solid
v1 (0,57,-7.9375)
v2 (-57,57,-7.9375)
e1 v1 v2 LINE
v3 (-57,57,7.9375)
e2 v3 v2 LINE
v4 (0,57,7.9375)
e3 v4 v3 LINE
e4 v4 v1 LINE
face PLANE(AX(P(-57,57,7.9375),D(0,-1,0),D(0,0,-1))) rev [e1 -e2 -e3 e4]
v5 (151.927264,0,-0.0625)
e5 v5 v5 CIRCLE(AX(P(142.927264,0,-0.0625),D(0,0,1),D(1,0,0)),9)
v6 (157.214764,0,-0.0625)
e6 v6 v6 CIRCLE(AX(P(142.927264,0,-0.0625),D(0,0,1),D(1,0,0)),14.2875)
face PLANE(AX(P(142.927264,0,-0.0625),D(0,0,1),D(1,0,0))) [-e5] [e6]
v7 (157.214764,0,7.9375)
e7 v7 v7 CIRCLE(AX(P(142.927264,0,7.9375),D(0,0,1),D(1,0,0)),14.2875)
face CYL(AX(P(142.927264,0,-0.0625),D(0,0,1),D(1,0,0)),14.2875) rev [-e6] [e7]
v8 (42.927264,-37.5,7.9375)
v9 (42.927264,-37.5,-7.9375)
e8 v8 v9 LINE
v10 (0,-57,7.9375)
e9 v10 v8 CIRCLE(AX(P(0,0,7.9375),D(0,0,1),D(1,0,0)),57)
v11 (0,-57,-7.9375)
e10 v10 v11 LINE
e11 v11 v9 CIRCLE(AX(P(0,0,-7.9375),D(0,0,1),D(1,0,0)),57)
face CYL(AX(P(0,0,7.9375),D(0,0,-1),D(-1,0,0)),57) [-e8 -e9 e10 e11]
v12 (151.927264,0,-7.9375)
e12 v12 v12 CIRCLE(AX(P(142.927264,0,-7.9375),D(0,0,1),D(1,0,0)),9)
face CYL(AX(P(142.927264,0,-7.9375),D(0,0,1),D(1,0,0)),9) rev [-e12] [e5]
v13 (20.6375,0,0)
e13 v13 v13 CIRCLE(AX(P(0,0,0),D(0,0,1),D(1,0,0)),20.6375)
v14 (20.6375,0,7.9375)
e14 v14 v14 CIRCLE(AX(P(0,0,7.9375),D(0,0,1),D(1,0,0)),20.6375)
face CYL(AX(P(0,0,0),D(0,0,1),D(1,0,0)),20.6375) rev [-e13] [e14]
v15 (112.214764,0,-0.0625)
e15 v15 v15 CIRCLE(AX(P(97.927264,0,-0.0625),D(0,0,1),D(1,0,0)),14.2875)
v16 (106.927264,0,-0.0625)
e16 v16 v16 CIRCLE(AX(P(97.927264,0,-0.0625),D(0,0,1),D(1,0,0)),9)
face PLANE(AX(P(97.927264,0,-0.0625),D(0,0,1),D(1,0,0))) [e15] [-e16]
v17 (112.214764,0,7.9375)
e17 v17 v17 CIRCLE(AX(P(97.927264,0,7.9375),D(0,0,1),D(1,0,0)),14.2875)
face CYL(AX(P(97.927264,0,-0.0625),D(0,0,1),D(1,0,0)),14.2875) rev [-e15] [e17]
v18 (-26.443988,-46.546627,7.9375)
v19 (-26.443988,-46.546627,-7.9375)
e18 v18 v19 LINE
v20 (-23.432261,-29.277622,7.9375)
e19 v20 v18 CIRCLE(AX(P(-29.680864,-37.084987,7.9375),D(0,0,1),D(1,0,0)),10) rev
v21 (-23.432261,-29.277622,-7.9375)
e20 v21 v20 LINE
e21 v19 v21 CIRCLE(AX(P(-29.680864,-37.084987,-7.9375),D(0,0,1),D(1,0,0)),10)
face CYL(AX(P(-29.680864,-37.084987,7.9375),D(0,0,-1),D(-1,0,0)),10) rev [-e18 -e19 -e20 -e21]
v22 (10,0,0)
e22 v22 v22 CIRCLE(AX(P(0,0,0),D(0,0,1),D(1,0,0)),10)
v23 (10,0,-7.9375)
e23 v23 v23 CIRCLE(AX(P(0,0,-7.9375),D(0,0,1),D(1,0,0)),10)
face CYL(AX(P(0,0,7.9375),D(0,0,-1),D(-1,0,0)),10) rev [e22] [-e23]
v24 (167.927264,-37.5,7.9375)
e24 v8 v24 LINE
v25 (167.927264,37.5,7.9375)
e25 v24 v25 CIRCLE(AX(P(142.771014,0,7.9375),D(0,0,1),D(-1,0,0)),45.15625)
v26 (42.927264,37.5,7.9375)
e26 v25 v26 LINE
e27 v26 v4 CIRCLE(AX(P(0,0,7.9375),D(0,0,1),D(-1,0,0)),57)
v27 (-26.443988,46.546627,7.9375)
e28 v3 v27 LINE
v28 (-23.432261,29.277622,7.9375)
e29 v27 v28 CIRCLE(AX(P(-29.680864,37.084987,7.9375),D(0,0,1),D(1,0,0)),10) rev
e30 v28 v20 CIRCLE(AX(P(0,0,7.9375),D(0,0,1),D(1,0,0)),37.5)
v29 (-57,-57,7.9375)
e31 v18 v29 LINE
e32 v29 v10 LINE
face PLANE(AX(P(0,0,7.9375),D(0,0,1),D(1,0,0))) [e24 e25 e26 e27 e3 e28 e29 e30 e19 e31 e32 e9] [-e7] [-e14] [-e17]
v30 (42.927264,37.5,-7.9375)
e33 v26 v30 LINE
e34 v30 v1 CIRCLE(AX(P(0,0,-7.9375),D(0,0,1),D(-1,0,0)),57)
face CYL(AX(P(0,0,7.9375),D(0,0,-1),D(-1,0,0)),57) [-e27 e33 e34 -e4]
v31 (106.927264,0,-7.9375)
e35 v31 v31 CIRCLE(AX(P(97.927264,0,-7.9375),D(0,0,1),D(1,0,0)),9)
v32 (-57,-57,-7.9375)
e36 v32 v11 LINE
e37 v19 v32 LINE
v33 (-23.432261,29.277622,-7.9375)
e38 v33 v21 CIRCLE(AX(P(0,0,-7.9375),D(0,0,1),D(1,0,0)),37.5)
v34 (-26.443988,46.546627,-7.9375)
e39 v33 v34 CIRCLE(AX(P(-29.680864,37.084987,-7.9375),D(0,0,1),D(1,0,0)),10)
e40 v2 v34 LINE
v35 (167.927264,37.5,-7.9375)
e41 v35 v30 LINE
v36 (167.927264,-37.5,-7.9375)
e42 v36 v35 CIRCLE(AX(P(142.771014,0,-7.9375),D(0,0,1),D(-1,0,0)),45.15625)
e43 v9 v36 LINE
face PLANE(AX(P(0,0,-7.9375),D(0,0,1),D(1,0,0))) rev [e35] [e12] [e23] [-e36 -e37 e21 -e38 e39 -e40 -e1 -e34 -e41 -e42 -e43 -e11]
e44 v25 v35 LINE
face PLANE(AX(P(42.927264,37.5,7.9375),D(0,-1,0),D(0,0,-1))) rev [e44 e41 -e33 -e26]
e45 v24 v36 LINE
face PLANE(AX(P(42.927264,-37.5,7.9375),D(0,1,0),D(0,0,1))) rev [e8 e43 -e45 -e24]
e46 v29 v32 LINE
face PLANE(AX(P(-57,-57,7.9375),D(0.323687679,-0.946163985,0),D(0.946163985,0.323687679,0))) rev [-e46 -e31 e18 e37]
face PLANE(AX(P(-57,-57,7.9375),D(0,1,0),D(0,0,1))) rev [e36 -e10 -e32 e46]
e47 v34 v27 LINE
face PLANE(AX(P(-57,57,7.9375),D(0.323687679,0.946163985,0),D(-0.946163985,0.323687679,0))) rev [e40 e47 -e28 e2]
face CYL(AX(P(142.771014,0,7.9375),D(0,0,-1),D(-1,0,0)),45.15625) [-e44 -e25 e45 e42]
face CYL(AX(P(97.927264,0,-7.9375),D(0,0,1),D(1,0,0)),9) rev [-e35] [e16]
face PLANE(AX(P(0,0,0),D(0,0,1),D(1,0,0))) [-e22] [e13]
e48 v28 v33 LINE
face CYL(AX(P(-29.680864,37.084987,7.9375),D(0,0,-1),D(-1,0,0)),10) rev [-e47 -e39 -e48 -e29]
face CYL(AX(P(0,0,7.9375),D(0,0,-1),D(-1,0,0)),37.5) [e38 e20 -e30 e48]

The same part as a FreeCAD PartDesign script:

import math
import FreeCAD as App
import Part
import Sketcher


def edges_at(feature, points):
    """Names of the edges that pass closest to the given points."""
    edges = feature.Shape.Edges
    near = lambda p: min(range(len(edges)), key=lambda i: edges[i].distToShape(Part.Vertex(*p))[0])
    return sorted({f"Edge{near(p) + 1}" for p in points})

doc = App.newDocument("Part")
params = doc.addObject("Spreadsheet::Sheet", "Params")
for row, (alias, value) in enumerate([
    ("sketch1_diameter", "20 mm"),
    ("sketch1_radius", "57 mm"),
    ("sketch1_radius2", "37.5 mm"),
    ("sketch1_width", "57 mm"),
    ("sketch1_width2", "125 mm"),
    ("pad1_length", "15.875 mm"),
    ("fillet_radius", "10 mm"),
    ("pocket1_length", "8 mm"),
    ("sketch3_diameter", "18 mm"),
    ("pocket3_length", "7.9375 mm"),
], start=1):
    params.set(f"A{row}", alias)
    params.set(f"B{row}", "=" + value)
    params.setAlias(f"B{row}", alias)

body = doc.addObject("PartDesign::Body", "Body")

sketch1 = body.newObject("Sketcher::SketchObject", "Sketch")
sketch1.AttachmentSupport = (doc.getObject("XY_Plane"), [""])
sketch1.MapMode = "FlatFace"
sketch1.addGeometry([
    Part.LineSegment(App.Vector(0, -38, 0), App.Vector(-57, -57, 0)),
    Part.LineSegment(App.Vector(-57, -57, 0), App.Vector(0, -57, 0)),
    Part.ArcOfCircle(Part.Circle(App.Vector(0, 0, 0), App.Vector(0, 0, 1), 57), math.radians(-90), math.radians(-41)),
    Part.LineSegment(App.Vector(43, -38, 0), App.Vector(168, -38, 0)),
    Part.ArcOfCircle(Part.Circle(App.Vector(143, 0, 0), App.Vector(0, 0, 1), 45), math.radians(-56), math.radians(56)),
    Part.LineSegment(App.Vector(168, 38, 0), App.Vector(43, 38, 0)),
    Part.ArcOfCircle(Part.Circle(App.Vector(0, 0, 0), App.Vector(0, 0, 1), 57), math.radians(41), math.radians(90)),
    Part.LineSegment(App.Vector(0, 57, 0), App.Vector(-57, 57, 0)),
    Part.LineSegment(App.Vector(-57, 57, 0), App.Vector(0, 38, 0)),
    Part.ArcOfCircle(Part.Circle(App.Vector(0, 0, 0), App.Vector(0, 0, 1), 38), math.radians(90), math.radians(270)),
    Part.Circle(App.Vector(0, 0, 0), App.Vector(0, 0, 1), 10),
], False)
sketch1.addConstraint([
    Sketcher.Constraint("Coincident", 0, 2, 1, 1),
    Sketcher.Constraint("Tangent", 1, 2, 2, 1),
    Sketcher.Constraint("Coincident", 2, 2, 3, 1),
    Sketcher.Constraint("Coincident", 3, 2, 4, 1),
    Sketcher.Constraint("Coincident", 4, 2, 5, 1),
    Sketcher.Constraint("Coincident", 5, 2, 6, 1),
    Sketcher.Constraint("Tangent", 6, 2, 7, 1),
    Sketcher.Constraint("Coincident", 7, 2, 8, 1),
    Sketcher.Constraint("Coincident", 8, 2, 9, 1),
    Sketcher.Constraint("Coincident", 9, 2, 0, 1),
    Sketcher.Constraint("Horizontal", 1),
    Sketcher.Constraint("Horizontal", 3),
    Sketcher.Constraint("Horizontal", 5),
    Sketcher.Constraint("Horizontal", 7),
    Sketcher.Constraint("Coincident", 2, 3, -1, 1),
    Sketcher.Constraint("Coincident", 6, 3, -1, 1),
    Sketcher.Constraint("Coincident", 9, 3, -1, 1),
    Sketcher.Constraint("Coincident", 10, 3, -1, 1),
    Sketcher.Constraint("Equal", 2, 6),
    Sketcher.Constraint("Symmetric", 3, 2, 4, 2, -1),
    Sketcher.Constraint("PointOnObject", 8, 2, -2),
    Sketcher.Constraint("PointOnObject", 9, 2, -2),
    Sketcher.Constraint("Horizontal", 5, 2, 8, 2),
    Sketcher.Constraint("Vertical", 0, 2, 7, 2),
    Sketcher.Constraint("Diameter", 10, 20.0),
    Sketcher.Constraint("Radius", 2, 57.0),
    Sketcher.Constraint("Radius", 9, 37.5),
    Sketcher.Constraint("DistanceX", 1, 1, 1, 2, 57.0),
    Sketcher.Constraint("DistanceX", 3, 1, 3, 2, 125.0),
    Sketcher.Constraint("Radius", 4, 45.15625),
])
sketch1.setExpression("Constraints[24]", "Params.sketch1_diameter")
sketch1.setExpression("Constraints[25]", "Params.sketch1_radius")
sketch1.setExpression("Constraints[26]", "Params.sketch1_radius2")
sketch1.setExpression("Constraints[27]", "Params.sketch1_width")
sketch1.setExpression("Constraints[28]", "Params.sketch1_width2")
pad1 = body.newObject("PartDesign::Pad", "Pad")
pad1.Profile = sketch1
pad1.setExpression("Length", "Params.pad1_length")
pad1.Midplane = True
doc.recompute()

fillet = body.newObject("PartDesign::Fillet", "Fillet")
fillet.Base = (pad1, edges_at(pad1, [(0, -37.5, 0), (0, 37.5, 0)]))
fillet.setExpression("Radius", "Params.fillet_radius")

sketch2 = body.newObject("Sketcher::SketchObject", "Sketch001")
sketch2.AttachmentSupport = (doc.getObject("XY_Plane"), [""])
sketch2.MapMode = "FlatFace"
sketch2.AttachmentOffset = App.Placement(App.Vector(0, 0, 7.9375), App.Rotation())
sketch2.addGeometry([
    Part.Circle(App.Vector(143, 0, 0), App.Vector(0, 0, 1), 14),
    Part.Circle(App.Vector(98, 0, 0), App.Vector(0, 0, 1), 14),
], False)
sketch2.addConstraint([
    Sketcher.Constraint("Equal", 0, 1),
    Sketcher.Constraint("PointOnObject", 0, 3, -1),
    Sketcher.Constraint("PointOnObject", 1, 3, -1),
    Sketcher.Constraint("Diameter", 0, 28.575),
    Sketcher.Constraint("DistanceX", 1, 3, 0, 3, 45.0),
    Sketcher.Constraint("DistanceX", -1, 1, 0, 3, 142.927264),
])
pocket1 = body.newObject("PartDesign::Pocket", "Pocket")
pocket1.Profile = sketch2
pocket1.setExpression("Length", "Params.pocket1_length")

sketch3 = body.newObject("Sketcher::SketchObject", "Sketch002")
sketch3.AttachmentSupport = (doc.getObject("XY_Plane"), [""])
sketch3.MapMode = "FlatFace"
sketch3.AttachmentOffset = App.Placement(App.Vector(0, 0, 7.9375), App.Rotation())
sketch3.addGeometry([
    Part.Circle(App.Vector(98, 0, 0), App.Vector(0, 0, 1), 9),
    Part.Circle(App.Vector(143, 0, 0), App.Vector(0, 0, 1), 9),
], False)
sketch3.addConstraint([
    Sketcher.Constraint("Equal", 0, 1),
    Sketcher.Constraint("PointOnObject", 0, 3, -1),
    Sketcher.Constraint("PointOnObject", 1, 3, -1),
    Sketcher.Constraint("Diameter", 0, 18.0),
    Sketcher.Constraint("DistanceX", 0, 3, 1, 3, 45.0),
    Sketcher.Constraint("DistanceX", -1, 1, 0, 3, 97.927264),
])
sketch3.setExpression("Constraints[3]", "Params.sketch3_diameter")
pocket2 = body.newObject("PartDesign::Pocket", "Pocket001")
pocket2.Profile = sketch3
pocket2.Type = "ThroughAll"

sketch4 = body.newObject("Sketcher::SketchObject", "Sketch003")
sketch4.AttachmentSupport = (doc.getObject("XY_Plane"), [""])
sketch4.MapMode = "FlatFace"
sketch4.AttachmentOffset = App.Placement(App.Vector(0, 0, 7.9375), App.Rotation())
sketch4.addGeometry(Part.Circle(App.Vector(0, 0, 0), App.Vector(0, 0, 1), 21), False)
sketch4.addConstraint([
    Sketcher.Constraint("Coincident", 0, 3, -1, 1),
    Sketcher.Constraint("Diameter", 0, 41.275),
])
pocket3 = body.newObject("PartDesign::Pocket", "Pocket002")
pocket3.Profile = sketch4
pocket3.setExpression("Length", "Params.pocket3_length")

doc.recompute()
